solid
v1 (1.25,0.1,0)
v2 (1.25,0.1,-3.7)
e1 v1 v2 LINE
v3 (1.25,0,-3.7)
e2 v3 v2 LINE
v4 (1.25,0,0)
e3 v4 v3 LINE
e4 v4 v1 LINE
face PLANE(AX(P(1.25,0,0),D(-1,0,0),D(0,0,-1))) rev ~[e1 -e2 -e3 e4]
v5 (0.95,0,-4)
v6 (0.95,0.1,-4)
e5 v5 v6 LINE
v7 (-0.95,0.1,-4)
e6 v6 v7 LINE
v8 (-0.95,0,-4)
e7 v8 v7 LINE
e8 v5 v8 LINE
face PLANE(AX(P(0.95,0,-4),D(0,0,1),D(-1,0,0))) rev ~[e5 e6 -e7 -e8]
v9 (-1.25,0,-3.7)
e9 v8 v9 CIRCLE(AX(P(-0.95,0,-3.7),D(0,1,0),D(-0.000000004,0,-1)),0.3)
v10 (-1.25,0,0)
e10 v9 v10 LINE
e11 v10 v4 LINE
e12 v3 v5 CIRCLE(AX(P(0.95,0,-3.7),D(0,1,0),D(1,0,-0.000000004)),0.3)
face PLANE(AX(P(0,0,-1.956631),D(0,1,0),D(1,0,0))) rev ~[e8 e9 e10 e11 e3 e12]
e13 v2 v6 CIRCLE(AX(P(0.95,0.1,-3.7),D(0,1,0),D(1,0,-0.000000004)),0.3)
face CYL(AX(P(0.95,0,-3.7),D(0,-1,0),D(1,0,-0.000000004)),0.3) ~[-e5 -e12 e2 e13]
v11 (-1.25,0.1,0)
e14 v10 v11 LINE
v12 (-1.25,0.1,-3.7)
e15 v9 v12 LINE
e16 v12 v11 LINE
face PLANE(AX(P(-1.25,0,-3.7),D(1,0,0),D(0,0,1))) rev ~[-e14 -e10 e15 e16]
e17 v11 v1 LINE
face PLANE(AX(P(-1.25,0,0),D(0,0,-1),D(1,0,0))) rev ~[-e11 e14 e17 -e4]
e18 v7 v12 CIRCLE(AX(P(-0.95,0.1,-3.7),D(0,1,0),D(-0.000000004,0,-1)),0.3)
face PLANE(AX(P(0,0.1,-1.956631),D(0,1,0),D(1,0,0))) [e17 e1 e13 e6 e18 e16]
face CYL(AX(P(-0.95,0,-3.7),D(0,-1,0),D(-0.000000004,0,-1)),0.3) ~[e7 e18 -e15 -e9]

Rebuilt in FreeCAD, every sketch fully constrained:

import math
import FreeCAD as App
import Part
import Sketcher

V = App.Vector

doc = App.newDocument("Part")
body = doc.addObject("PartDesign::Body", "Body")

# Sketch on XZ plane
sketch1 = body.newObject("Sketcher::SketchObject", "Sketch")
sketch1.AttachmentSupport = (doc.getObject("XZ_Plane"), [""])
sketch1.MapMode = "FlatFace"
sketch1.addGeometry(Part.LineSegment(V(1.25, 0, 0), V(1.25, -3.7, 0)), False)
sketch1.addGeometry(Part.ArcOfCircle(Part.Circle(V(0.95, -3.7, 0), V(0, 0, 1), 0.3), math.radians(-90), math.radians(0)), False)
sketch1.addGeometry(Part.LineSegment(V(0.95, -4, 0), V(-0.95, -4, 0)), False)
sketch1.addGeometry(Part.ArcOfCircle(Part.Circle(V(-0.95, -3.7, 0), V(0, 0, 1), 0.3), math.radians(-180), math.radians(-90)), False)
sketch1.addGeometry(Part.LineSegment(V(-1.25, -3.7, 0), V(-1.25, 0, 0)), False)
sketch1.addGeometry(Part.LineSegment(V(-1.25, 0, 0), V(1.25, 0, 0)), False)
sketch1.addConstraint(Sketcher.Constraint("Tangent", 0, 2, 1, 2))
sketch1.addConstraint(Sketcher.Constraint("Tangent", 1, 1, 2, 1))
sketch1.addConstraint(Sketcher.Constraint("Tangent", 2, 2, 3, 2))
sketch1.addConstraint(Sketcher.Constraint("Tangent", 3, 1, 4, 1))
sketch1.addConstraint(Sketcher.Constraint("Coincident", 4, 2, 5, 1))
sketch1.addConstraint(Sketcher.Constraint("Coincident", 5, 2, 0, 1))
sketch1.addConstraint(Sketcher.Constraint("Vertical", 0))
sketch1.addConstraint(Sketcher.Constraint("Horizontal", 2))
sketch1.addConstraint(Sketcher.Constraint("Vertical", 4))
sketch1.addConstraint(Sketcher.Constraint("Horizontal", 5))
sketch1.addConstraint(Sketcher.Constraint("Equal", 1, 3))
sketch1.addConstraint(Sketcher.Constraint("Symmetric", 4, 2, 5, 2, -1, 1))
sketch1.addConstraint(Sketcher.Constraint("Radius", 1, 0.3))
sketch1.addConstraint(Sketcher.Constraint("DistanceX", 2, 2, 2, 1, 1.9))
sketch1.addConstraint(Sketcher.Constraint("DistanceY", 0, 2, 0, 1, 3.7))
pad1 = body.newObject("PartDesign::Pad", "Pad")
pad1.Profile = sketch1
pad1.Length = 0.1
pad1.Reversed = True

doc.recompute()
